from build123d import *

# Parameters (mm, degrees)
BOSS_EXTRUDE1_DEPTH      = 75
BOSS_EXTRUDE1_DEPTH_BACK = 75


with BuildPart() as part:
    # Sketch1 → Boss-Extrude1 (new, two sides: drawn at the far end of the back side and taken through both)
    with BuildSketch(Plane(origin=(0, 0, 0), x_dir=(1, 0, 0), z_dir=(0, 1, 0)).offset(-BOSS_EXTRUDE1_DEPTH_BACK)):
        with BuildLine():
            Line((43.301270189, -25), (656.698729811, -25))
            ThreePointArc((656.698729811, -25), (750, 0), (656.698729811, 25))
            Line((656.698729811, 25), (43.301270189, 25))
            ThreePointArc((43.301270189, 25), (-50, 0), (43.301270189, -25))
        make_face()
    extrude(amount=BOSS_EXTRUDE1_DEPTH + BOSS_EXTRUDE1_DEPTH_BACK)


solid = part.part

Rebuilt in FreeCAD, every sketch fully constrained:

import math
import FreeCAD as App
import Part
import Sketcher
from FreeCAD import Vector
Q = App.Units.Quantity

doc = App.newDocument("Part")
params = doc.addObject("Spreadsheet::Sheet", "Params")
for row, (alias, value) in enumerate([
    ("sketch1_radius", "50 mm"),
    ("pad1_length", "75 mm"),
    ("pad1_length2", "75 mm"),
], start=1):
    params.set(f"A{row}", alias)
    params.set(f"B{row}", "=" + value)
    params.setAlias(f"B{row}", alias)

body = doc.addObject("PartDesign::Body", "Body")

# Sketch on XZ plane
sketch1 = body.newObject("Sketcher::SketchObject", "Sketch")
sketch1.AttachmentSupport = (doc.getObject("XZ_Plane"), [""])
sketch1.MapMode = "FlatFace"
sketch1.addGeometry(Part.LineSegment(Vector(43, 25, 0), Vector(657, 25, 0)), False)
sketch1.addGeometry(Part.ArcOfCircle(Part.Circle(Vector(700, 0, 0), Vector(0, 0, 1), 50), math.radians(-150), math.radians(150)), False)
sketch1.addGeometry(Part.LineSegment(Vector(657, -25, 0), Vector(43, -25, 0)), False)
sketch1.addGeometry(Part.ArcOfCircle(Part.Circle(Vector(0, 0, 0), Vector(0, 0, 1), 50), math.radians(30), math.radians(330)), False)
sketch1.addConstraint(Sketcher.Constraint("Coincident", 0, 2, 1, 2))
sketch1.addConstraint(Sketcher.Constraint("Coincident", 1, 1, 2, 1))
sketch1.addConstraint(Sketcher.Constraint("Coincident", 2, 2, 3, 2))
sketch1.addConstraint(Sketcher.Constraint("Coincident", 3, 1, 0, 1))
sketch1.addConstraint(Sketcher.Constraint("Horizontal", 0))
sketch1.addConstraint(Sketcher.Constraint("Horizontal", 2))
sketch1.addConstraint(Sketcher.Constraint("Coincident", 3, 3, -1, 1))
sketch1.addConstraint(Sketcher.Constraint("Equal", 1, 3))
sketch1.addConstraint(Sketcher.Constraint("Symmetric", 0, 2, 1, 1, -1))
sketch1.addConstraint(Sketcher.Constraint("Radius", 1, Q("50 mm")))
sketch1.addConstraint(Sketcher.Constraint("DistanceX", -1, 1, 1, 3, Q("700 mm")))
sketch1.addConstraint(Sketcher.Constraint("DistanceY", -1, 1, 0, 2, Q("25 mm")))
sketch1.setExpression("Constraints[9]", "Params.sketch1_radius")
pad1 = body.newObject("PartDesign::Pad", "Pad")
pad1.Profile = sketch1
pad1.Type = "TwoLengths"
pad1.setExpression("Length", "Params.pad1_length")
pad1.setExpression("Length2", "Params.pad1_length2")
pad1.Reversed = True

doc.recompute()
